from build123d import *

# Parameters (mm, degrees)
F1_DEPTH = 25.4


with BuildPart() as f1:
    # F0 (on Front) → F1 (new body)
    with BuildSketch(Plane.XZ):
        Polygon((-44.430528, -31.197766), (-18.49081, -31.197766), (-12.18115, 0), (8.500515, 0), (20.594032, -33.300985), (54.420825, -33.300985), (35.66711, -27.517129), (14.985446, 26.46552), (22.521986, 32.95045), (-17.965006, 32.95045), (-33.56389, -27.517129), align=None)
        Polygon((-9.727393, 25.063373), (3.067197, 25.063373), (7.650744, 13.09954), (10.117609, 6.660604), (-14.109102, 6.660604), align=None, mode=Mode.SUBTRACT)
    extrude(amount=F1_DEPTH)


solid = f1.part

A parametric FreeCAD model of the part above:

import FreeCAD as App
import Part
import Sketcher
Q = App.Units.Quantity


def add_polygon(sketch, points):
    """Adds a closed chain of lines whose ends are joined by coincident constraints."""
    first, n = sketch.GeometryCount, len(points)
    for a, b in zip(points, points[1:] + points[:1]):
        sketch.addGeometry(Part.LineSegment(App.Vector(*a, 0), App.Vector(*b, 0)), False)
    for i in range(n):
        sketch.addConstraint(Sketcher.Constraint("Coincident", first + i, 2, first + (i + 1) % n, 1))

doc = App.newDocument("Part")
body = doc.addObject("PartDesign::Body", "Body")

# Sketch on XZ plane
sketch1 = body.newObject("Sketcher::SketchObject", "Sketch")
sketch1.AttachmentSupport = (doc.getObject("XZ_Plane"), [""])
sketch1.MapMode = "FlatFace"
add_polygon(sketch1, [(-44.430528, -31.197766), (-18.49081, -31.197766), (-12.18115, 0), (8.500515, 0), (20.594032, -33.300985), (54.420825, -33.300985), (35.66711, -27.517129), (14.985446, 26.46552), (22.521986, 32.95045), (-17.965006, 32.95045), (-33.56389, -27.517129)])  # lines 0-10
add_polygon(sketch1, [(-14.109102, 6.660604), (-9.727393, 25.063373), (3.067197, 25.063373), (7.650744, 13.09954), (10.117609, 6.660604)])  # lines 11-15
sketch1.addConstraint(Sketcher.Constraint("Horizontal", 0))
sketch1.addConstraint(Sketcher.Constraint("Horizontal", 2))
sketch1.addConstraint(Sketcher.Constraint("Horizontal", 4))
sketch1.addConstraint(Sketcher.Constraint("Horizontal", 8))
sketch1.addConstraint(Sketcher.Constraint("Horizontal", 12))
sketch1.addConstraint(Sketcher.Constraint("Horizontal", 15))
sketch1.addConstraint(Sketcher.Constraint("PointOnObject", 1, 2, -1))
sketch1.addConstraint(Sketcher.Constraint("Parallel", 6, 13))
sketch1.addConstraint(Sketcher.Constraint("Parallel", 13, 14))
sketch1.addConstraint(Sketcher.Constraint("Horizontal", 5, 2, 9, 2))
sketch1.addConstraint(Sketcher.Constraint("Distance", 13, Q("12.811799 mm")))
sketch1.addConstraint(Sketcher.Constraint("DistanceX", 0, 1, 0, 2, Q("25.939718 mm")))
sketch1.addConstraint(Sketcher.Constraint("DistanceX", 12, 1, 12, 2, Q("12.79459 mm")))
sketch1.addConstraint(Sketcher.Constraint("DistanceX", 15, 2, 15, 1, Q("24.226711 mm")))
sketch1.addConstraint(Sketcher.Constraint("DistanceX", 13, 2, 6, 2, Q("7.334702 mm")))
sketch1.addConstraint(Sketcher.Constraint("Distance", 5, Q("19.625362 mm")))
sketch1.addConstraint(Sketcher.Constraint("Distance", 10, Q("11.473051 mm")))
sketch1.addConstraint(Sketcher.Constraint("Distance", 11, Q("18.917222 mm")))
sketch1.addConstraint(Sketcher.Constraint("Distance", 14, Q("6.895311 mm")))
sketch1.addConstraint(Sketcher.Constraint("DistanceX", 2, 1, 2, 2, Q("20.681665 mm")))
sketch1.addConstraint(Sketcher.Constraint("DistanceX", 4, 1, 4, 2, Q("33.826793 mm")))
sketch1.addConstraint(Sketcher.Constraint("DistanceX", 8, 2, 8, 1, Q("40.486992 mm")))
sketch1.addConstraint(Sketcher.Constraint("DistanceX", 0, 2, -1, 1, Q("18.49081 mm")))
sketch1.addConstraint(Sketcher.Constraint("DistanceX", 1, 2, -1, 1, Q("12.18115 mm")))
sketch1.addConstraint(Sketcher.Constraint("DistanceX", -1, 1, 3, 2, Q("20.594032 mm")))
sketch1.addConstraint(Sketcher.Constraint("DistanceX", -1, 1, 5, 2, Q("35.66711 mm")))
sketch1.addConstraint(Sketcher.Constraint("DistanceY", 5, 2, -1, 1, Q("27.517129 mm")))
sketch1.addConstraint(Sketcher.Constraint("DistanceY", -1, 1, 6, 2, Q("26.46552 mm")))
sketch1.addConstraint(Sketcher.Constraint("DistanceY", -1, 1, 7, 2, Q("32.95045 mm")))
sketch1.addConstraint(Sketcher.Constraint("DistanceX", 9, 2, -1, 1, Q("33.56389 mm")))
sketch1.addConstraint(Sketcher.Constraint("DistanceY", -1, 1, 13, 2, Q("13.09954 mm")))
sketch1.addConstraint(Sketcher.Constraint("DistanceX", 6, 2, 7, 2, Q("7.53654 mm")))
pad1 = body.newObject("PartDesign::Pad", "Pad")
pad1.Profile = sketch1
pad1.Length = Q("1 in")

doc.recompute()
